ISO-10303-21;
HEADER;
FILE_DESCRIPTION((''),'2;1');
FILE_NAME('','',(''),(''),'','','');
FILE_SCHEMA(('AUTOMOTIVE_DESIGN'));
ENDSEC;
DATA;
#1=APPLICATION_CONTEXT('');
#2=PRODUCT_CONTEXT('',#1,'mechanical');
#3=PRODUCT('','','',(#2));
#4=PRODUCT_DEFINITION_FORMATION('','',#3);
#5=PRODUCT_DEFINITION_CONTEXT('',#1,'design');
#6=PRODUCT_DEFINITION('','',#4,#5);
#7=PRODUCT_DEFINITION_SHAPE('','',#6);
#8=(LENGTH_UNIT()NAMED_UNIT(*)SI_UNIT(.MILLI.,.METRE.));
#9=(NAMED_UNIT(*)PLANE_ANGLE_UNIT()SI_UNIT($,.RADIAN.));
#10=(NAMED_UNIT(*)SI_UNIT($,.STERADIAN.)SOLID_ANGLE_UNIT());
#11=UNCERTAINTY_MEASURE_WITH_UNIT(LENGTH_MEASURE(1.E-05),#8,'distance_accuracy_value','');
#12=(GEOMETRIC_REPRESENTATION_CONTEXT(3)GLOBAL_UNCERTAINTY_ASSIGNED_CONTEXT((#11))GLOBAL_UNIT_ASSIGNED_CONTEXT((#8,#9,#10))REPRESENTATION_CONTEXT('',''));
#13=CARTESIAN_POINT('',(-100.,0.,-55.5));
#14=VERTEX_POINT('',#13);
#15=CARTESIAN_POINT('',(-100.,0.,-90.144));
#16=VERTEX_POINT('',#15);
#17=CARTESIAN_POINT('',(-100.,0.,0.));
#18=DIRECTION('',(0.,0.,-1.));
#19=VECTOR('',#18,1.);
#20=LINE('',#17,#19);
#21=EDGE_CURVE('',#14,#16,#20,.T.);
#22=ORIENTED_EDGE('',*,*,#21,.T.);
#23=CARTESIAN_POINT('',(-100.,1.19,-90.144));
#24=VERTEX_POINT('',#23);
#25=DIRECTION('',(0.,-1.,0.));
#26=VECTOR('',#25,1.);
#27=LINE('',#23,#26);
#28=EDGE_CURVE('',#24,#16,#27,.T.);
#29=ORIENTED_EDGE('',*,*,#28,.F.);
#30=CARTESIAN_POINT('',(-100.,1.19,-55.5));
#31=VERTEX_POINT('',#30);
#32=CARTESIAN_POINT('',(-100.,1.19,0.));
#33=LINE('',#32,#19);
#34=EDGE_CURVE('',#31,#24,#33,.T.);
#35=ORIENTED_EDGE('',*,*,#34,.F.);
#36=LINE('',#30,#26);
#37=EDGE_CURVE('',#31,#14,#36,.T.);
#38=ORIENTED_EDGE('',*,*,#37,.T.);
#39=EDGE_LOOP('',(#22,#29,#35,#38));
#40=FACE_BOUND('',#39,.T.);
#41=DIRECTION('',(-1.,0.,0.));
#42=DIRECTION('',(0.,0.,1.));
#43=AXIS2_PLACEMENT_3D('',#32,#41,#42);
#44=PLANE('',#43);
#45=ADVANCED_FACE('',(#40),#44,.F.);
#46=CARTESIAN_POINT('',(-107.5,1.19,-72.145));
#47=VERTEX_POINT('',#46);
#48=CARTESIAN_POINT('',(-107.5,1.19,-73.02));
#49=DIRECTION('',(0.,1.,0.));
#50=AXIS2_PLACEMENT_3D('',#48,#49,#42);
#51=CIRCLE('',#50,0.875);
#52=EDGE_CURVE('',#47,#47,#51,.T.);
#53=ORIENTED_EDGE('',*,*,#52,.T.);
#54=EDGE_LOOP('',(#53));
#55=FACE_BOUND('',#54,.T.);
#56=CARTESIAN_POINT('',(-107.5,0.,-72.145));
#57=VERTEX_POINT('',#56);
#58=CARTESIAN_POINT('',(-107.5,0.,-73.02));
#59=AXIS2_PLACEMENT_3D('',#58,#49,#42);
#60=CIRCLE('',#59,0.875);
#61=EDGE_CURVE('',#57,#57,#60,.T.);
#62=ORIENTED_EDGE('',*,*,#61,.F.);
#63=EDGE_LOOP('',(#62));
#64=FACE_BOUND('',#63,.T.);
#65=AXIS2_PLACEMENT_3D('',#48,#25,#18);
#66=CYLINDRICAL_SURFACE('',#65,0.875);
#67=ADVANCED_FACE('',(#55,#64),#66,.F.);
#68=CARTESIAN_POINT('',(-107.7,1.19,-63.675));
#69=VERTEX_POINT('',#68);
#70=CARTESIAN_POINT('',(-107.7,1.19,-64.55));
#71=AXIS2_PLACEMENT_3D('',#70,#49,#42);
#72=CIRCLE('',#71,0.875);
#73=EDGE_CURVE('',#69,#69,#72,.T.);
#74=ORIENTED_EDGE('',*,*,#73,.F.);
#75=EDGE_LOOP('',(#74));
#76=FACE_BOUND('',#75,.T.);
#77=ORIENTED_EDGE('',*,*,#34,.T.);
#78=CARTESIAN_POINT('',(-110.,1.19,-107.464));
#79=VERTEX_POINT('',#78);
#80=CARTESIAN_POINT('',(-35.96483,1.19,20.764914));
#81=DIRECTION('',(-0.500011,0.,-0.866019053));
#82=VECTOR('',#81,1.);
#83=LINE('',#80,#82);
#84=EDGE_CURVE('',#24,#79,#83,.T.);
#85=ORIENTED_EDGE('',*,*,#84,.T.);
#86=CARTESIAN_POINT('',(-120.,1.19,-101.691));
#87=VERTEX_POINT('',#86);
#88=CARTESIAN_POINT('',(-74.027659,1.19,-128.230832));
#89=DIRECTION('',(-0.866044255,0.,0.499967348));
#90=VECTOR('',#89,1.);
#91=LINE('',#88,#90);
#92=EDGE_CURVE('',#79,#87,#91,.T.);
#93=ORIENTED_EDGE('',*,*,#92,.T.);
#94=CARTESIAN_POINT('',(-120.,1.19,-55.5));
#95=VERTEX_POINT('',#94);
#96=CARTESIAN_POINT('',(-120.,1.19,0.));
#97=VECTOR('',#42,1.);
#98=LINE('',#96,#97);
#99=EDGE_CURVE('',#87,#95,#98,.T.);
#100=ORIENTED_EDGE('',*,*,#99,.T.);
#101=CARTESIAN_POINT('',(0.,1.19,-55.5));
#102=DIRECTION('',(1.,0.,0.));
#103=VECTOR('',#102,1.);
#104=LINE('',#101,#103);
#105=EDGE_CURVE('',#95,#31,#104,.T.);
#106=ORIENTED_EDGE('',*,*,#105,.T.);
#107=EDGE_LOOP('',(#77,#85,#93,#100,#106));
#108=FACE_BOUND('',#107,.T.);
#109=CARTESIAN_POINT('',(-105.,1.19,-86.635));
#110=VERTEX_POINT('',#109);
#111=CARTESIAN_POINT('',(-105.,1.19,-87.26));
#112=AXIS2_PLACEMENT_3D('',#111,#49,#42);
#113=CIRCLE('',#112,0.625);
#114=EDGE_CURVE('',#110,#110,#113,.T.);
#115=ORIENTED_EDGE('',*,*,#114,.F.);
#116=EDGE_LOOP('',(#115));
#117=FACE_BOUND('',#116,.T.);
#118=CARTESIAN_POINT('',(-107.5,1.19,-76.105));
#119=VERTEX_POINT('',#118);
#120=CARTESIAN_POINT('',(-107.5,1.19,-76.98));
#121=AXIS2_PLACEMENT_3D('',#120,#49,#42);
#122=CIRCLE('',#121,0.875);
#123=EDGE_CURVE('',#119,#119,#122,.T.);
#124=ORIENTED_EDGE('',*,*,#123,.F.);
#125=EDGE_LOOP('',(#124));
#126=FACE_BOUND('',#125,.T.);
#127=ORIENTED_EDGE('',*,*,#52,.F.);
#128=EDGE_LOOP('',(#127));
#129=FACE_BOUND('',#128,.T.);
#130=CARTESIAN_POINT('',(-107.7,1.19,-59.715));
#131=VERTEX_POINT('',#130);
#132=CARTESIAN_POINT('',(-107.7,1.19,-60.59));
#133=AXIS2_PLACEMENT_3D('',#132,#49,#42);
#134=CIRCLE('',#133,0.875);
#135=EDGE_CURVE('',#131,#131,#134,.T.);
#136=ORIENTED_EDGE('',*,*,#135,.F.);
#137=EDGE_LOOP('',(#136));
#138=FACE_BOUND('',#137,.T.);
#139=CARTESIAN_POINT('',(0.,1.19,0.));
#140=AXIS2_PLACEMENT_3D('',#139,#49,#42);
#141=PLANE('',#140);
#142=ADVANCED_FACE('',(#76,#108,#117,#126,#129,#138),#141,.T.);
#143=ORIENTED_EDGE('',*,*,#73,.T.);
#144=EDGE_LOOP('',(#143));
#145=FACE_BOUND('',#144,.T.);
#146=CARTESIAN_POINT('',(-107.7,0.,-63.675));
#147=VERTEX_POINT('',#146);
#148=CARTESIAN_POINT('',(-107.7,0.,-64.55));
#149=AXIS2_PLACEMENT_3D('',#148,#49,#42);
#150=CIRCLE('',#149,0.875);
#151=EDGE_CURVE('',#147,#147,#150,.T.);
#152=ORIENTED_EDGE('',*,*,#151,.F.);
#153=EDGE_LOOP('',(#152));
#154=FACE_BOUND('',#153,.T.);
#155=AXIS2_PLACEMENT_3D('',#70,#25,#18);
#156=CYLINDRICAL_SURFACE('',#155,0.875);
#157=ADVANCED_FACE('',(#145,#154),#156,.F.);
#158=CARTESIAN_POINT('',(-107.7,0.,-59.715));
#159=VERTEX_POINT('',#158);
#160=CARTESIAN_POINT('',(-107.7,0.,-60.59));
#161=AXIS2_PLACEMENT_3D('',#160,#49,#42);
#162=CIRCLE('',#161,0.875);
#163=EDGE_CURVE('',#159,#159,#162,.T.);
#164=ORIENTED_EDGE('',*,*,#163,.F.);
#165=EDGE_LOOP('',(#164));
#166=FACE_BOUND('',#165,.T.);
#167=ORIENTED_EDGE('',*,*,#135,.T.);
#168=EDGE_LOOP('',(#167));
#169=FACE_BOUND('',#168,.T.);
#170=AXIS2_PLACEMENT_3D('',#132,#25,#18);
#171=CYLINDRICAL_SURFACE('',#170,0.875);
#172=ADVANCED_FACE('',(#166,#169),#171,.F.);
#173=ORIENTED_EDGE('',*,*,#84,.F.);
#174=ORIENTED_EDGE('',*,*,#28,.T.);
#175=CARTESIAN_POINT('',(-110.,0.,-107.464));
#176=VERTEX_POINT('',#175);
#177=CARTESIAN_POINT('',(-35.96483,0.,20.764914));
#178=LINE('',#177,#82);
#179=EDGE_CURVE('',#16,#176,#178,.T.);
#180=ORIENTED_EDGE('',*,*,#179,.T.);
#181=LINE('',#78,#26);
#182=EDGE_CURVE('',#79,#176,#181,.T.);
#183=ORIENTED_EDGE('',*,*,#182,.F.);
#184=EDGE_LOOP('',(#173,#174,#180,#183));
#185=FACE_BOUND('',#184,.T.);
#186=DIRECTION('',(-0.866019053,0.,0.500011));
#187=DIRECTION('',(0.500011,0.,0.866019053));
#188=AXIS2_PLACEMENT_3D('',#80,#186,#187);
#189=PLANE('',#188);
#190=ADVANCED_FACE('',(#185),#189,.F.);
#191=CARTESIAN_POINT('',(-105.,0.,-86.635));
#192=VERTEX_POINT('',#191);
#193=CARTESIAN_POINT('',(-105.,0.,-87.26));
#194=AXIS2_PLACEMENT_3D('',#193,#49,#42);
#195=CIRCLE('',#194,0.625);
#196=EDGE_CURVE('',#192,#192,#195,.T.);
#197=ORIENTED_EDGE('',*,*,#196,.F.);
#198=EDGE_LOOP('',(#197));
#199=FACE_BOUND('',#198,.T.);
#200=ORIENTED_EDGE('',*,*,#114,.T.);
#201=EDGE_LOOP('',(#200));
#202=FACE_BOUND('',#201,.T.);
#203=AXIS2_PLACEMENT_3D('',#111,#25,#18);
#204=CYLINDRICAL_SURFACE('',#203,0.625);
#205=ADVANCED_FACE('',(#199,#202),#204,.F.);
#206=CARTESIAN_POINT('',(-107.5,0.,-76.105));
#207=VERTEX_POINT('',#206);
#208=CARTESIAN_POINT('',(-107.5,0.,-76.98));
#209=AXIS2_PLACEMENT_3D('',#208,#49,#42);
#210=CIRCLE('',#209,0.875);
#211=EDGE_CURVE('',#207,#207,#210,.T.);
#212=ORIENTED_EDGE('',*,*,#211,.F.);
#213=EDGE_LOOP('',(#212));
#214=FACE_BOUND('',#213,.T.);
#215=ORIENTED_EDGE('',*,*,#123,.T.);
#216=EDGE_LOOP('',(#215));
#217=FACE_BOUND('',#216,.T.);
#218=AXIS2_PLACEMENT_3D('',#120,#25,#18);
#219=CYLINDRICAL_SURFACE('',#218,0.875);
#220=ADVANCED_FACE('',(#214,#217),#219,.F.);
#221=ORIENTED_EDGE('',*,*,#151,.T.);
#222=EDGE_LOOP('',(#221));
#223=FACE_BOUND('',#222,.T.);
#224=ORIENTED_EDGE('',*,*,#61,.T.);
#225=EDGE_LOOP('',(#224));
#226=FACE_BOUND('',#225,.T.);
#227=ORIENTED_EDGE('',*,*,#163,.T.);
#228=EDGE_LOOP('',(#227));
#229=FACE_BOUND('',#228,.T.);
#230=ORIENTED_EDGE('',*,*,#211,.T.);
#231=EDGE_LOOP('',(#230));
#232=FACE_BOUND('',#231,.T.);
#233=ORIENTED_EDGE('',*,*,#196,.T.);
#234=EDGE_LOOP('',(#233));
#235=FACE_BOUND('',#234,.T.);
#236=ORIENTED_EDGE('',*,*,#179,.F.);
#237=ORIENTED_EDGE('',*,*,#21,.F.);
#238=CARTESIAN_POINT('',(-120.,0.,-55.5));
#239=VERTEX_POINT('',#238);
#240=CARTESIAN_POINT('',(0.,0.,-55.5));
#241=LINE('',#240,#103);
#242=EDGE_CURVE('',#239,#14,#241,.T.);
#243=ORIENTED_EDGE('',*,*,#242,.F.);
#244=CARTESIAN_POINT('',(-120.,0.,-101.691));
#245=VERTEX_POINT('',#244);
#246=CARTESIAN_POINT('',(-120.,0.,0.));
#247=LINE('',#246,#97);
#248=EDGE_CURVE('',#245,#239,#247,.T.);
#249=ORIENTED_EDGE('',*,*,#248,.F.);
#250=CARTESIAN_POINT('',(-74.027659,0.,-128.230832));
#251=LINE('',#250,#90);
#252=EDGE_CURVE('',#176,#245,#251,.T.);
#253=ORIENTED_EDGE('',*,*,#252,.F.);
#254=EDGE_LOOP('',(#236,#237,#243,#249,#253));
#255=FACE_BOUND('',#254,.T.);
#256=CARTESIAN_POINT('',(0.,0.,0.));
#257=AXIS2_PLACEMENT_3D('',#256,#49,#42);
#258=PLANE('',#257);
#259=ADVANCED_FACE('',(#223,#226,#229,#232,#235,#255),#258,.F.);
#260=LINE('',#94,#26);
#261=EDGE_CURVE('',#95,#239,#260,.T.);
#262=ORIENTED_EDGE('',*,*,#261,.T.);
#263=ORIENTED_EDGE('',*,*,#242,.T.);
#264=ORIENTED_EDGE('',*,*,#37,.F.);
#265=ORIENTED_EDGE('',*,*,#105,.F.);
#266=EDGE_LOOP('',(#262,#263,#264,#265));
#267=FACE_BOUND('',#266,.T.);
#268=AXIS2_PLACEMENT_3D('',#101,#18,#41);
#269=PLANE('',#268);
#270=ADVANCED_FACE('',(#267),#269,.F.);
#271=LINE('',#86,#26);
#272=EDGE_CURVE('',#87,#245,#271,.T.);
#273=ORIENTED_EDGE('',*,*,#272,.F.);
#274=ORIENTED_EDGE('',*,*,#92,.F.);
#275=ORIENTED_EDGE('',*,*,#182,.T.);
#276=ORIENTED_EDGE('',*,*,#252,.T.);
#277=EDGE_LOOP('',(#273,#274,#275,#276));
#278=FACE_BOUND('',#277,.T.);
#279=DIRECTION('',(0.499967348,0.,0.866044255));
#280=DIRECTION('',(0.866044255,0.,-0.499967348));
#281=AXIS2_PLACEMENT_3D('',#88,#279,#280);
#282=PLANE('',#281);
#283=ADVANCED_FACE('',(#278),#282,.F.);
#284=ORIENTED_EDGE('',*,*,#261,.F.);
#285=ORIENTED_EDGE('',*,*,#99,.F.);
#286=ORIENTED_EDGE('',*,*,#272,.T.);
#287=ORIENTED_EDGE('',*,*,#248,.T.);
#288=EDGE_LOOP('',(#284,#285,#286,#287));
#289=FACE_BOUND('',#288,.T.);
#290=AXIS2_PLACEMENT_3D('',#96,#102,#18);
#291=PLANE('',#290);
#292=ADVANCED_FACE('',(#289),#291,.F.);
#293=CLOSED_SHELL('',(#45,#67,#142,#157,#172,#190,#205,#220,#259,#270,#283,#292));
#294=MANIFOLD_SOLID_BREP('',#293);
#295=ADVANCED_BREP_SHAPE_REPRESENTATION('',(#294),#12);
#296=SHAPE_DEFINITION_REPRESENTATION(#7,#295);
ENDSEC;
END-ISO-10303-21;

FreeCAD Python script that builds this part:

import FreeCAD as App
import Part
import Sketcher

doc = App.newDocument("Part")
body = doc.addObject("PartDesign::Body", "Body")

sketch1 = body.newObject("Sketcher::SketchObject", "Sketch")
sketch1.AttachmentSupport = (doc.getObject("XZ_Plane"), [""])
sketch1.MapMode = "FlatFace"
sketch1.addGeometry([
    Part.LineSegment(App.Vector(-120, -101.7, 0), App.Vector(-120, -55.5, 0)),
    Part.LineSegment(App.Vector(-120, -55.5, 0), App.Vector(-100, -55.5, 0)),
    Part.LineSegment(App.Vector(-100, -55.5, 0), App.Vector(-100, -90.1, 0)),
    Part.LineSegment(App.Vector(-100, -90.1, 0), App.Vector(-110, -107.5, 0)),
    Part.LineSegment(App.Vector(-110, -107.5, 0), App.Vector(-120, -101.7, 0)),
    Part.Circle(App.Vector(-107.7, -60.6, 0), App.Vector(0, 0, 1), 0.9),
    Part.Circle(App.Vector(-107.7, -64.5, 0), App.Vector(0, 0, 1), 0.9),
    Part.Circle(App.Vector(-107.5, -73, 0), App.Vector(0, 0, 1), 0.9),
    Part.Circle(App.Vector(-107.5, -77, 0), App.Vector(0, 0, 1), 0.9),
    Part.Circle(App.Vector(-105, -87.3, 0), App.Vector(0, 0, 1), 0.6),
], False)
sketch1.addConstraint([
    Sketcher.Constraint("Coincident", 0, 2, 1, 1),
    Sketcher.Constraint("Coincident", 1, 2, 2, 1),
    Sketcher.Constraint("Coincident", 2, 2, 3, 1),
    Sketcher.Constraint("Coincident", 3, 2, 4, 1),
    Sketcher.Constraint("Coincident", 4, 2, 0, 1),
    Sketcher.Constraint("Vertical", 0),
    Sketcher.Constraint("Horizontal", 1),
    Sketcher.Constraint("Vertical", 2),
    Sketcher.Constraint("Equal", 5, 6),
    Sketcher.Constraint("Equal", 6, 7),
    Sketcher.Constraint("Equal", 7, 8),
    Sketcher.Constraint("Vertical", 5, 3, 6, 3),
    Sketcher.Constraint("Vertical", 7, 3, 8, 3),
    Sketcher.Constraint("Diameter", 5, 1.75),
    Sketcher.Constraint("Diameter", 9, 1.25),
    Sketcher.Constraint("DistanceX", 1, 1, 1, 2, 20.0),
    Sketcher.Constraint("DistanceX", 9, 3, -1, 1, 105.0),
    Sketcher.Constraint("DistanceX", 0, 2, -1, 1, 120.0),
    Sketcher.Constraint("DistanceX", 3, 2, -1, 1, 110.0),
    Sketcher.Constraint("DistanceX", 5, 3, -1, 1, 107.7),
    Sketcher.Constraint("DistanceX", 7, 3, -1, 1, 107.5),
    Sketcher.Constraint("DistanceY", 0, 2, -1, 1, 55.5),
    Sketcher.Constraint("DistanceY", 0, 1, 0, 2, 46.191),
    Sketcher.Constraint("DistanceY", 2, 2, 2, 1, 34.644),
    Sketcher.Constraint("DistanceY", 5, 3, -1, 1, 60.59),
    Sketcher.Constraint("DistanceY", 6, 3, -1, 1, 64.55),
    Sketcher.Constraint("DistanceY", 7, 3, -1, 1, 73.02),
    Sketcher.Constraint("DistanceY", 8, 3, -1, 1, 76.98),
    Sketcher.Constraint("DistanceY", 9, 3, -1, 1, 87.26),
    Sketcher.Constraint("DistanceY", 3, 2, 2, 2, 17.32),
])
pad1 = body.newObject("PartDesign::Pad", "Pad")
pad1.Profile = sketch1
pad1.Length = 1.19
pad1.Reversed = True

doc.recompute()
